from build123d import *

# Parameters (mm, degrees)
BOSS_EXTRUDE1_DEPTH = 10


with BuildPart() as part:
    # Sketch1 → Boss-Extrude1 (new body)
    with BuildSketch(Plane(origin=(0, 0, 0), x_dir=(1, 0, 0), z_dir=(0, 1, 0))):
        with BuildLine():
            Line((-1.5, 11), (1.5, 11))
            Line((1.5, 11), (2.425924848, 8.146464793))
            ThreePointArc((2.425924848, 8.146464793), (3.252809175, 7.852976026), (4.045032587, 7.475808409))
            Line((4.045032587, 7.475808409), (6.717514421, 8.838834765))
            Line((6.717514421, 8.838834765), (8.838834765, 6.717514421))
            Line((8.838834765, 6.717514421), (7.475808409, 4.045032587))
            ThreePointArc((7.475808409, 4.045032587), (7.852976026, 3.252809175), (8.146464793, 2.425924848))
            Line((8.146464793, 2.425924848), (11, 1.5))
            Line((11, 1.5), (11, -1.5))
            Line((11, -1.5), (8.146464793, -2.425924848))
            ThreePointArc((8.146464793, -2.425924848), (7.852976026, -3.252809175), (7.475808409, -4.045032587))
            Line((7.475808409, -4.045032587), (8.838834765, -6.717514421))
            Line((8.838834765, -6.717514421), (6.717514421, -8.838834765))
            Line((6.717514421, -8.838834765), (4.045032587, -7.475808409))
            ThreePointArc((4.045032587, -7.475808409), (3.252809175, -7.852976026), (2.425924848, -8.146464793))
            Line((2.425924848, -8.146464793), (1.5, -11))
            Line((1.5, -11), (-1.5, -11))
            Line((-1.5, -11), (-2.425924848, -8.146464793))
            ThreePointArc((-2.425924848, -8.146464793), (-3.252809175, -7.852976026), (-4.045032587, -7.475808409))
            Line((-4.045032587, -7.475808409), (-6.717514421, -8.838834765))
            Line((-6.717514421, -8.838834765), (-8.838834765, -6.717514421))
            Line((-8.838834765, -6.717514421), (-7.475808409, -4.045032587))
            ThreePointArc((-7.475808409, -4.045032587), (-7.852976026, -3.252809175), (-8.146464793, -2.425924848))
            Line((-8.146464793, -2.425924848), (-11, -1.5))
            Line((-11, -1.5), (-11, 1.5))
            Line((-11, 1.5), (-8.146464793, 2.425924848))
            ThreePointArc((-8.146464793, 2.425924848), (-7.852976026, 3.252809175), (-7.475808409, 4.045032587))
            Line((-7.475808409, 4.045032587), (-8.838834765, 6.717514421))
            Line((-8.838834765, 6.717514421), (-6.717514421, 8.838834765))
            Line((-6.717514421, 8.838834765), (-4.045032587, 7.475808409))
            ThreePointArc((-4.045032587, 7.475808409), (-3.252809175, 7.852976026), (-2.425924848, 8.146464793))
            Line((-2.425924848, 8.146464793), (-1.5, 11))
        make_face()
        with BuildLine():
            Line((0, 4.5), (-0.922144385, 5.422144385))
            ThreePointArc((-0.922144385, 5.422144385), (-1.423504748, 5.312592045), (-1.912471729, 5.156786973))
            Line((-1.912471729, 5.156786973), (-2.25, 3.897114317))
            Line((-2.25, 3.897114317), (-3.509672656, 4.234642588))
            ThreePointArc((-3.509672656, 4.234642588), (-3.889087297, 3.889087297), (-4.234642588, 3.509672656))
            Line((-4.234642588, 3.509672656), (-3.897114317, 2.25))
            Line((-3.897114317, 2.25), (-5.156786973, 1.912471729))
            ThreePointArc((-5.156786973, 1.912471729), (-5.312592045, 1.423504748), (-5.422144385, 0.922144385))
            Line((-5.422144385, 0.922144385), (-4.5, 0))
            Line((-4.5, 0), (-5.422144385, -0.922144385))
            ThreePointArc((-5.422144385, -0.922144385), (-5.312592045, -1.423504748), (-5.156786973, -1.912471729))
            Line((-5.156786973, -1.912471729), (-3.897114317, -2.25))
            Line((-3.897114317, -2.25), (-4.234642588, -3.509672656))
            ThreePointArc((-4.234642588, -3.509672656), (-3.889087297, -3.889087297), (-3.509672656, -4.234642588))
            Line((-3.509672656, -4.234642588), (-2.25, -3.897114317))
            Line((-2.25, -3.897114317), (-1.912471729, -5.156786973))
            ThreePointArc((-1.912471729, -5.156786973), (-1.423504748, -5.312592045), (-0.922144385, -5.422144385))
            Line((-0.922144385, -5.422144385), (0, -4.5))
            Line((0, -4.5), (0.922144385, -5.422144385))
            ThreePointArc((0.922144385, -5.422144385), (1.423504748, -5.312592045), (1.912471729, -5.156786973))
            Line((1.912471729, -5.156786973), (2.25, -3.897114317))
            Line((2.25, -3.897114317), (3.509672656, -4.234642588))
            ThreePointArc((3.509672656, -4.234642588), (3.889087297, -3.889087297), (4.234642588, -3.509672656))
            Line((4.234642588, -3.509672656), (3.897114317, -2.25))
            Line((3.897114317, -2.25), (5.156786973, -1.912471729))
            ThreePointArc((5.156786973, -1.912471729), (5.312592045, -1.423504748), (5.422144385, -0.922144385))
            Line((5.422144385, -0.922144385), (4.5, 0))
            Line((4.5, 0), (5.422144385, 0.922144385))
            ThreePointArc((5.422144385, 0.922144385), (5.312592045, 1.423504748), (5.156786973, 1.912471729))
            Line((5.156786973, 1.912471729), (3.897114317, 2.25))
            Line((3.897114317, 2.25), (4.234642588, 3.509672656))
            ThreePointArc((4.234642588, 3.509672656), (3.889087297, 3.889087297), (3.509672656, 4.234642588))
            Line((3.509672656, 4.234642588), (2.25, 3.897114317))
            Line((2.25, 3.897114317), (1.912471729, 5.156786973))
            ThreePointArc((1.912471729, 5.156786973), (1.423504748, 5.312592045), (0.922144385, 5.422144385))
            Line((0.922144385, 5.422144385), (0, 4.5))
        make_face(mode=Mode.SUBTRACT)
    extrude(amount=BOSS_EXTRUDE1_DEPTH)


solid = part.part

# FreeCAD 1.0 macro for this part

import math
import FreeCAD as App
import Part
import Sketcher
Q = App.Units.Quantity

doc = App.newDocument("Part")
params = doc.addObject("Spreadsheet::Sheet", "Params")
for row, (alias, value) in enumerate([
    ("sketch1_radius", "8.5 mm"),
    ("sketch1_radius2", "5.5 mm"),
    ("sketch1_width", "3 mm"),
    ("sketch1_length", "3 mm"),
    ("pad1_length", "10 mm"),
], start=1):
    params.set(f"A{row}", alias)
    params.set(f"B{row}", "=" + value)
    params.setAlias(f"B{row}", alias)

body = doc.addObject("PartDesign::Body", "Body")

# Sketch on XZ plane
sketch1 = body.newObject("Sketcher::SketchObject", "Sketch")
sketch1.AttachmentSupport = (doc.getObject("XZ_Plane"), [""])
sketch1.MapMode = "FlatFace"
sketch1.addGeometry([
    Part.LineSegment(App.Vector(1.5, -11, 0), App.Vector(-1.5, -11, 0)),  # 0
    Part.LineSegment(App.Vector(-1.5, -11, 0), App.Vector(-2.425925, -8.146465, 0)),  # 1
    Part.ArcOfCircle(Part.Circle(App.Vector(0, 0, 0), App.Vector(0, 0, 1), 8.5), math.radians(-118.417065), math.radians(-106.582935)),  # 2
    Part.LineSegment(App.Vector(-4.045033, -7.475808, 0), App.Vector(-6.717514, -8.838835, 0)),  # 3
    Part.LineSegment(App.Vector(-6.717514, -8.838835, 0), App.Vector(-8.838835, -6.717514, 0)),  # 4
    Part.LineSegment(App.Vector(-8.838835, -6.717514, 0), App.Vector(-7.475808, -4.045033, 0)),  # 5
    Part.ArcOfCircle(Part.Circle(App.Vector(0, 0, 0), App.Vector(0, 0, 1), 8.5), math.radians(-163.417065), math.radians(-151.582935)),  # 6
    Part.LineSegment(App.Vector(-8.146465, -2.425925, 0), App.Vector(-11, -1.5, 0)),  # 7
    Part.LineSegment(App.Vector(-11, -1.5, 0), App.Vector(-11, 1.5, 0)),  # 8
    Part.LineSegment(App.Vector(-11, 1.5, 0), App.Vector(-8.146465, 2.425925, 0)),  # 9
    Part.ArcOfCircle(Part.Circle(App.Vector(0, 0, 0), App.Vector(0, 0, 1), 8.5), math.radians(151.582935), math.radians(163.417065)),  # 10
    Part.LineSegment(App.Vector(-7.475808, 4.045033, 0), App.Vector(-8.838835, 6.717514, 0)),  # 11
    Part.LineSegment(App.Vector(-8.838835, 6.717514, 0), App.Vector(-6.717514, 8.838835, 0)),  # 12
    Part.LineSegment(App.Vector(-6.717514, 8.838835, 0), App.Vector(-4.045033, 7.475808, 0)),  # 13
    Part.ArcOfCircle(Part.Circle(App.Vector(0, 0, 0), App.Vector(0, 0, 1), 8.5), math.radians(106.582935), math.radians(118.417065)),  # 14
    Part.LineSegment(App.Vector(-2.425925, 8.146465, 0), App.Vector(-1.5, 11, 0)),  # 15
    Part.LineSegment(App.Vector(-1.5, 11, 0), App.Vector(1.5, 11, 0)),  # 16
    Part.LineSegment(App.Vector(1.5, 11, 0), App.Vector(2.425925, 8.146465, 0)),  # 17
    Part.ArcOfCircle(Part.Circle(App.Vector(0, 0, 0), App.Vector(0, 0, 1), 8.5), math.radians(61.582935), math.radians(73.417065)),  # 18
    Part.LineSegment(App.Vector(4.045033, 7.475808, 0), App.Vector(6.717514, 8.838835, 0)),  # 19
    Part.LineSegment(App.Vector(6.717514, 8.838835, 0), App.Vector(8.838835, 6.717514, 0)),  # 20
    Part.LineSegment(App.Vector(8.838835, 6.717514, 0), App.Vector(7.475808, 4.045033, 0)),  # 21
    Part.ArcOfCircle(Part.Circle(App.Vector(0, 0, 0), App.Vector(0, 0, 1), 8.5), math.radians(16.582935), math.radians(28.417065)),  # 22
    Part.LineSegment(App.Vector(8.146465, 2.425925, 0), App.Vector(11, 1.5, 0)),  # 23
    Part.LineSegment(App.Vector(11, 1.5, 0), App.Vector(11, -1.5, 0)),  # 24
    Part.LineSegment(App.Vector(11, -1.5, 0), App.Vector(8.146465, -2.425925, 0)),  # 25
    Part.ArcOfCircle(Part.Circle(App.Vector(0, 0, 0), App.Vector(0, 0, 1), 8.5), math.radians(-28.417065), math.radians(-16.582935)),  # 26
    Part.LineSegment(App.Vector(7.475808, -4.045033, 0), App.Vector(8.838835, -6.717514, 0)),  # 27
    Part.LineSegment(App.Vector(8.838835, -6.717514, 0), App.Vector(6.717514, -8.838835, 0)),  # 28
    Part.LineSegment(App.Vector(6.717514, -8.838835, 0), App.Vector(4.045033, -7.475808, 0)),  # 29
    Part.ArcOfCircle(Part.Circle(App.Vector(0, 0, 0), App.Vector(0, 0, 1), 8.5), math.radians(-73.417065), math.radians(-61.582935)),  # 30
    Part.LineSegment(App.Vector(2.425925, -8.146465, 0), App.Vector(1.5, -11, 0)),  # 31
    Part.LineSegment(App.Vector(0, -4.5, 0), App.Vector(0.922144, -5.422144, 0)),  # 32
    Part.ArcOfCircle(Part.Circle(App.Vector(0, 0, 0), App.Vector(0, 0, 1), 5.5), math.radians(-80.348054), math.radians(-69.651946)),  # 33
    Part.LineSegment(App.Vector(1.912472, -5.156787, 0), App.Vector(2.25, -3.897114, 0)),  # 34
    Part.LineSegment(App.Vector(2.25, -3.897114, 0), App.Vector(3.509673, -4.234643, 0)),  # 35
    Part.ArcOfCircle(Part.Circle(App.Vector(0, 0, 0), App.Vector(0, 0, 1), 5.5), math.radians(-50.348054), math.radians(-39.651946)),  # 36
    Part.LineSegment(App.Vector(4.234643, -3.509673, 0), App.Vector(3.897114, -2.25, 0)),  # 37
    Part.LineSegment(App.Vector(3.897114, -2.25, 0), App.Vector(5.156787, -1.912472, 0)),  # 38
    Part.ArcOfCircle(Part.Circle(App.Vector(0, 0, 0), App.Vector(0, 0, 1), 5.5), math.radians(-20.348054), math.radians(-9.651946)),  # 39
    Part.LineSegment(App.Vector(5.422144, -0.922144, 0), App.Vector(4.5, 0, 0)),  # 40
    Part.LineSegment(App.Vector(4.5, 0, 0), App.Vector(5.422144, 0.922144, 0)),  # 41
    Part.ArcOfCircle(Part.Circle(App.Vector(0, 0, 0), App.Vector(0, 0, 1), 5.5), math.radians(9.651946), math.radians(20.348054)),  # 42
    Part.LineSegment(App.Vector(5.156787, 1.912472, 0), App.Vector(3.897114, 2.25, 0)),  # 43
    Part.LineSegment(App.Vector(3.897114, 2.25, 0), App.Vector(4.234643, 3.509673, 0)),  # 44
    Part.ArcOfCircle(Part.Circle(App.Vector(0, 0, 0), App.Vector(0, 0, 1), 5.5), math.radians(39.651946), math.radians(50.348054)),  # 45
    Part.LineSegment(App.Vector(3.509673, 4.234643, 0), App.Vector(2.25, 3.897114, 0)),  # 46
    Part.LineSegment(App.Vector(2.25, 3.897114, 0), App.Vector(1.912472, 5.156787, 0)),  # 47
    Part.ArcOfCircle(Part.Circle(App.Vector(0, 0, 0), App.Vector(0, 0, 1), 5.5), math.radians(69.651946), math.radians(80.348054)),  # 48
    Part.LineSegment(App.Vector(0.922144, 5.422144, 0), App.Vector(0, 4.5, 0)),  # 49
    Part.LineSegment(App.Vector(0, 4.5, 0), App.Vector(-0.922144, 5.422144, 0)),  # 50
    Part.ArcOfCircle(Part.Circle(App.Vector(0, 0, 0), App.Vector(0, 0, 1), 5.5), math.radians(99.651946), math.radians(110.348054)),  # 51
    Part.LineSegment(App.Vector(-1.912472, 5.156787, 0), App.Vector(-2.25, 3.897114, 0)),  # 52
    Part.LineSegment(App.Vector(-2.25, 3.897114, 0), App.Vector(-3.509673, 4.234643, 0)),  # 53
    Part.ArcOfCircle(Part.Circle(App.Vector(0, 0, 0), App.Vector(0, 0, 1), 5.5), math.radians(129.651946), math.radians(140.348054)),  # 54
    Part.LineSegment(App.Vector(-4.234643, 3.509673, 0), App.Vector(-3.897114, 2.25, 0)),  # 55
    Part.LineSegment(App.Vector(-3.897114, 2.25, 0), App.Vector(-5.156787, 1.912472, 0)),  # 56
    Part.ArcOfCircle(Part.Circle(App.Vector(0, 0, 0), App.Vector(0, 0, 1), 5.5), math.radians(159.651946), math.radians(170.348054)),  # 57
    Part.LineSegment(App.Vector(-5.422144, 0.922144, 0), App.Vector(-4.5, 0, 0)),  # 58
    Part.LineSegment(App.Vector(-4.5, 0, 0), App.Vector(-5.422144, -0.922144, 0)),  # 59
    Part.ArcOfCircle(Part.Circle(App.Vector(0, 0, 0), App.Vector(0, 0, 1), 5.5), math.radians(-170.348054), math.radians(-159.651946)),  # 60
    Part.LineSegment(App.Vector(-5.156787, -1.912472, 0), App.Vector(-3.897114, -2.25, 0)),  # 61
    Part.LineSegment(App.Vector(-3.897114, -2.25, 0), App.Vector(-4.234643, -3.509673, 0)),  # 62
    Part.ArcOfCircle(Part.Circle(App.Vector(0, 0, 0), App.Vector(0, 0, 1), 5.5), math.radians(-140.348054), math.radians(-129.651946)),  # 63
    Part.LineSegment(App.Vector(-3.509673, -4.234643, 0), App.Vector(-2.25, -3.897114, 0)),  # 64
    Part.LineSegment(App.Vector(-2.25, -3.897114, 0), App.Vector(-1.912472, -5.156787, 0)),  # 65
    Part.ArcOfCircle(Part.Circle(App.Vector(0, 0, 0), App.Vector(0, 0, 1), 5.5), math.radians(-110.348054), math.radians(-99.651946)),  # 66
    Part.LineSegment(App.Vector(-0.922144, -5.422144, 0), App.Vector(0, -4.5, 0)),  # 67
], False)
sketch1.addConstraint([
    Sketcher.Constraint("Coincident", 0, 2, 1, 1),
    Sketcher.Constraint("Coincident", 1, 2, 2, 2),
    Sketcher.Constraint("Coincident", 2, 1, 3, 1),
    Sketcher.Constraint("Coincident", 3, 2, 4, 1),
    Sketcher.Constraint("Coincident", 4, 2, 5, 1),
    Sketcher.Constraint("Coincident", 5, 2, 6, 2),
    Sketcher.Constraint("Coincident", 6, 1, 7, 1),
    Sketcher.Constraint("Coincident", 7, 2, 8, 1),
    Sketcher.Constraint("Coincident", 8, 2, 9, 1),
    Sketcher.Constraint("Coincident", 9, 2, 10, 2),
    Sketcher.Constraint("Coincident", 10, 1, 11, 1),
    Sketcher.Constraint("Coincident", 11, 2, 12, 1),
    Sketcher.Constraint("Coincident", 12, 2, 13, 1),
    Sketcher.Constraint("Coincident", 13, 2, 14, 2),
    Sketcher.Constraint("Coincident", 14, 1, 15, 1),
    Sketcher.Constraint("Coincident", 15, 2, 16, 1),
    Sketcher.Constraint("Coincident", 16, 2, 17, 1),
    Sketcher.Constraint("Coincident", 17, 2, 18, 2),
    Sketcher.Constraint("Coincident", 18, 1, 19, 1),
    Sketcher.Constraint("Coincident", 19, 2, 20, 1),
    Sketcher.Constraint("Coincident", 20, 2, 21, 1),
    Sketcher.Constraint("Coincident", 21, 2, 22, 2),
    Sketcher.Constraint("Coincident", 22, 1, 23, 1),
    Sketcher.Constraint("Coincident", 23, 2, 24, 1),
    Sketcher.Constraint("Coincident", 24, 2, 25, 1),
    Sketcher.Constraint("Coincident", 25, 2, 26, 2),
    Sketcher.Constraint("Coincident", 26, 1, 27, 1),
    Sketcher.Constraint("Coincident", 27, 2, 28, 1),
    Sketcher.Constraint("Coincident", 28, 2, 29, 1),
    Sketcher.Constraint("Coincident", 29, 2, 30, 2),
    Sketcher.Constraint("Coincident", 30, 1, 31, 1),
    Sketcher.Constraint("Coincident", 31, 2, 0, 1),
    Sketcher.Constraint("Coincident", 32, 2, 33, 1),
    Sketcher.Constraint("Coincident", 33, 2, 34, 1),
    Sketcher.Constraint("Coincident", 34, 2, 35, 1),
    Sketcher.Constraint("Coincident", 35, 2, 36, 1),
    Sketcher.Constraint("Coincident", 36, 2, 37, 1),
    Sketcher.Constraint("Coincident", 37, 2, 38, 1),
    Sketcher.Constraint("Coincident", 38, 2, 39, 1),
    Sketcher.Constraint("Coincident", 39, 2, 40, 1),
    Sketcher.Constraint("Coincident", 40, 2, 41, 1),
    Sketcher.Constraint("Coincident", 41, 2, 42, 1),
    Sketcher.Constraint("Coincident", 42, 2, 43, 1),
    Sketcher.Constraint("Coincident", 43, 2, 44, 1),
    Sketcher.Constraint("Coincident", 44, 2, 45, 1),
    Sketcher.Constraint("Coincident", 45, 2, 46, 1),
    Sketcher.Constraint("Coincident", 46, 2, 47, 1),
    Sketcher.Constraint("Coincident", 47, 2, 48, 1),
    Sketcher.Constraint("Coincident", 48, 2, 49, 1),
    Sketcher.Constraint("Coincident", 49, 2, 50, 1),
    Sketcher.Constraint("Coincident", 50, 2, 51, 1),
    Sketcher.Constraint("Coincident", 51, 2, 52, 1),
    Sketcher.Constraint("Coincident", 52, 2, 53, 1),
    Sketcher.Constraint("Coincident", 53, 2, 54, 1),
    Sketcher.Constraint("Coincident", 54, 2, 55, 1),
    Sketcher.Constraint("Coincident", 55, 2, 56, 1),
    Sketcher.Constraint("Coincident", 56, 2, 57, 1),
    Sketcher.Constraint("Coincident", 57, 2, 58, 1),
    Sketcher.Constraint("Coincident", 58, 2, 59, 1),
    Sketcher.Constraint("Coincident", 59, 2, 60, 1),
    Sketcher.Constraint("Coincident", 60, 2, 61, 1),
    Sketcher.Constraint("Coincident", 61, 2, 62, 1),
    Sketcher.Constraint("Coincident", 62, 2, 63, 1),
    Sketcher.Constraint("Coincident", 63, 2, 64, 1),
    Sketcher.Constraint("Coincident", 64, 2, 65, 1),
    Sketcher.Constraint("Coincident", 65, 2, 66, 1),
    Sketcher.Constraint("Coincident", 66, 2, 67, 1),
    Sketcher.Constraint("Coincident", 67, 2, 32, 1),
    Sketcher.Constraint("Horizontal", 0),
    Sketcher.Constraint("Vertical", 8),
    Sketcher.Constraint("Horizontal", 16),
    Sketcher.Constraint("Vertical", 24),
    Sketcher.Constraint("Coincident", 2, 3, -1, 1),
    Sketcher.Constraint("Coincident", 6, 3, -1, 1),
    Sketcher.Constraint("Coincident", 10, 3, -1, 1),
    Sketcher.Constraint("Coincident", 14, 3, -1, 1),
    Sketcher.Constraint("Coincident", 18, 3, -1, 1),
    Sketcher.Constraint("Coincident", 22, 3, -1, 1),
    Sketcher.Constraint("Coincident", 26, 3, -1, 1),
    Sketcher.Constraint("Coincident", 30, 3, -1, 1),
    Sketcher.Constraint("Coincident", 33, 3, -1, 1),
    Sketcher.Constraint("Coincident", 36, 3, -1, 1),
    Sketcher.Constraint("Coincident", 39, 3, -1, 1),
    Sketcher.Constraint("Coincident", 42, 3, -1, 1),
    Sketcher.Constraint("Coincident", 45, 3, -1, 1),
    Sketcher.Constraint("Coincident", 48, 3, -1, 1),
    Sketcher.Constraint("Coincident", 51, 3, -1, 1),
    Sketcher.Constraint("Coincident", 54, 3, -1, 1),
    Sketcher.Constraint("Coincident", 57, 3, -1, 1),
    Sketcher.Constraint("Coincident", 60, 3, -1, 1),
    Sketcher.Constraint("Coincident", 63, 3, -1, 1),
    Sketcher.Constraint("Coincident", 66, 3, -1, 1),
    Sketcher.Constraint("Equal", 2, 6),
    Sketcher.Constraint("Equal", 6, 10),
    Sketcher.Constraint("Equal", 10, 14),
    Sketcher.Constraint("Equal", 14, 18),
    Sketcher.Constraint("Equal", 18, 22),
    Sketcher.Constraint("Equal", 22, 26),
    Sketcher.Constraint("Equal", 26, 30),
    Sketcher.Constraint("Equal", 33, 36),
    Sketcher.Constraint("Equal", 36, 39),
    Sketcher.Constraint("Equal", 39, 42),
    Sketcher.Constraint("Equal", 42, 45),
    Sketcher.Constraint("Equal", 45, 48),
    Sketcher.Constraint("Equal", 48, 51),
    Sketcher.Constraint("Equal", 51, 54),
    Sketcher.Constraint("Equal", 54, 57),
    Sketcher.Constraint("Equal", 57, 60),
    Sketcher.Constraint("Equal", 60, 63),
    Sketcher.Constraint("Equal", 63, 66),
    Sketcher.Constraint("Symmetric", 0, 2, 16, 2, -1, 1),
    Sketcher.Constraint("Symmetric", 3, 2, 19, 2, -1, 1),
    Sketcher.Constraint("Symmetric", 4, 2, 20, 2, -1, 1),
    Sketcher.Constraint("Symmetric", 7, 2, 23, 2, -1, 1),
    Sketcher.Constraint("Symmetric", 11, 2, 27, 2, -1, 1),
    Sketcher.Constraint("Symmetric", 12, 2, 28, 2, -1, 1),
    Sketcher.Constraint("Symmetric", 34, 2, 52, 2, -1, 1),
    Sketcher.Constraint("Symmetric", 37, 2, 55, 2, -1, 1),
    Sketcher.Constraint("Symmetric", 40, 2, 58, 2, -1, 1),
    Sketcher.Constraint("Symmetric", 43, 2, 61, 2, -1, 1),
    Sketcher.Constraint("Symmetric", 46, 2, 64, 2, -1, 1),
    Sketcher.Constraint("Symmetric", 49, 2, 67, 2, -1, 1),
    Sketcher.Constraint("Symmetric", 12, 2, 19, 2, -2),
    Sketcher.Constraint("Symmetric", 11, 2, 20, 2, -2),
    Sketcher.Constraint("Symmetric", 46, 2, 52, 2, -2),
    Sketcher.Constraint("Symmetric", 43, 2, 55, 2, -2),
    Sketcher.Constraint("PointOnObject", 40, 2, -1),
    Sketcher.Constraint("PointOnObject", 49, 2, -2),
    Sketcher.Constraint("Perpendicular", 1, 9),
    Sketcher.Constraint("Perpendicular", 3, 11),
    Sketcher.Constraint("Perpendicular", 4, 12),
    Sketcher.Constraint("Perpendicular", 5, 13),
    Sketcher.Constraint("Perpendicular", 7, 15),
    Sketcher.Constraint("Perpendicular", 9, 17),
    Sketcher.Constraint("Perpendicular", 11, 19),
    Sketcher.Constraint("Perpendicular", 13, 21),
    Sketcher.Constraint("Perpendicular", 15, 23),
    Sketcher.Constraint("Perpendicular", 17, 25),
    Sketcher.Constraint("Perpendicular", 19, 27),
    Sketcher.Constraint("Perpendicular", 21, 29),
    Sketcher.Constraint("Perpendicular", 23, 31),
    Sketcher.Constraint("Perpendicular", 28, 32),
    Sketcher.Constraint("Perpendicular", 34, 35),
    Sketcher.Constraint("Perpendicular", 37, 38),
    Sketcher.Constraint("Parallel", 32, 40),
    Sketcher.Constraint("Perpendicular", 40, 41),
    Sketcher.Constraint("Parallel", 35, 43),
    Sketcher.Constraint("Perpendicular", 43, 44),
    Sketcher.Constraint("Parallel", 38, 46),
    Sketcher.Constraint("Perpendicular", 46, 47),
    Sketcher.Constraint("Parallel", 41, 49),
    Sketcher.Constraint("Perpendicular", 49, 50),
    Sketcher.Constraint("Parallel", 44, 52),
    Sketcher.Constraint("Perpendicular", 52, 53),
    Sketcher.Constraint("Parallel", 47, 55),
    Sketcher.Constraint("Perpendicular", 55, 56),
    Sketcher.Constraint("Parallel", 50, 58),
    Sketcher.Constraint("Perpendicular", 58, 59),
    Sketcher.Constraint("Parallel", 53, 61),
    Sketcher.Constraint("Perpendicular", 61, 62),
    Sketcher.Constraint("Parallel", 56, 64),
    Sketcher.Constraint("Perpendicular", 64, 65),
    Sketcher.Constraint("Parallel", 59, 67),
    Sketcher.Constraint("Horizontal", 14, 1, 17, 2),
    Sketcher.Constraint("Horizontal", 13, 2, 18, 1),
    Sketcher.Constraint("Horizontal", 9, 2, 22, 1),
    Sketcher.Constraint("Horizontal", 8, 2, 23, 2),
    Sketcher.Constraint("Horizontal", 7, 2, 24, 2),
    Sketcher.Constraint("Horizontal", 1, 2, 30, 1),
    Sketcher.Constraint("Horizontal", 47, 2, 51, 2),
    Sketcher.Constraint("Equal", 16, 8),
    Sketcher.Constraint("Equal", 1, 3),
    Sketcher.Constraint("Equal", 3, 4),
    Sketcher.Constraint("Equal", 4, 5),
    Sketcher.Constraint("Equal", 5, 7),
    Sketcher.Constraint("Equal", 32, 34),
    Sketcher.Constraint("Equal", 34, 35),
    Sketcher.Constraint("Equal", 35, 37),
    Sketcher.Constraint("Equal", 37, 38),
    Sketcher.Constraint("Equal", 38, 40),
    Sketcher.Constraint("Radius", 2, 8.5),
    Sketcher.Constraint("Radius", 33, 5.5),
    Sketcher.Constraint("DistanceX", 0, 2, 0, 1, 3.0),
    Sketcher.Constraint("Angle", 34, Q("75 deg")),
    Sketcher.Constraint("Distance", 1, 3.0),
    Sketcher.Constraint("DistanceY", 0, 2, -1, 1, 11.0),
    Sketcher.Constraint("DistanceX", -1, 1, 40, 2, 4.5),
    Sketcher.Constraint("DistanceY", 2, 1, -1, 1, 7.475808),
])
sketch1.setExpression("Constraints[180]", "Params.sketch1_radius")
sketch1.setExpression("Constraints[181]", "Params.sketch1_radius2")
sketch1.setExpression("Constraints[182]", "Params.sketch1_width")
sketch1.setExpression("Constraints[184]", "Params.sketch1_length")
pad1 = body.newObject("PartDesign::Pad", "Pad")
pad1.Profile = sketch1
pad1.setExpression("Length", "Params.pad1_length")
pad1.Reversed = True

doc.recompute()
